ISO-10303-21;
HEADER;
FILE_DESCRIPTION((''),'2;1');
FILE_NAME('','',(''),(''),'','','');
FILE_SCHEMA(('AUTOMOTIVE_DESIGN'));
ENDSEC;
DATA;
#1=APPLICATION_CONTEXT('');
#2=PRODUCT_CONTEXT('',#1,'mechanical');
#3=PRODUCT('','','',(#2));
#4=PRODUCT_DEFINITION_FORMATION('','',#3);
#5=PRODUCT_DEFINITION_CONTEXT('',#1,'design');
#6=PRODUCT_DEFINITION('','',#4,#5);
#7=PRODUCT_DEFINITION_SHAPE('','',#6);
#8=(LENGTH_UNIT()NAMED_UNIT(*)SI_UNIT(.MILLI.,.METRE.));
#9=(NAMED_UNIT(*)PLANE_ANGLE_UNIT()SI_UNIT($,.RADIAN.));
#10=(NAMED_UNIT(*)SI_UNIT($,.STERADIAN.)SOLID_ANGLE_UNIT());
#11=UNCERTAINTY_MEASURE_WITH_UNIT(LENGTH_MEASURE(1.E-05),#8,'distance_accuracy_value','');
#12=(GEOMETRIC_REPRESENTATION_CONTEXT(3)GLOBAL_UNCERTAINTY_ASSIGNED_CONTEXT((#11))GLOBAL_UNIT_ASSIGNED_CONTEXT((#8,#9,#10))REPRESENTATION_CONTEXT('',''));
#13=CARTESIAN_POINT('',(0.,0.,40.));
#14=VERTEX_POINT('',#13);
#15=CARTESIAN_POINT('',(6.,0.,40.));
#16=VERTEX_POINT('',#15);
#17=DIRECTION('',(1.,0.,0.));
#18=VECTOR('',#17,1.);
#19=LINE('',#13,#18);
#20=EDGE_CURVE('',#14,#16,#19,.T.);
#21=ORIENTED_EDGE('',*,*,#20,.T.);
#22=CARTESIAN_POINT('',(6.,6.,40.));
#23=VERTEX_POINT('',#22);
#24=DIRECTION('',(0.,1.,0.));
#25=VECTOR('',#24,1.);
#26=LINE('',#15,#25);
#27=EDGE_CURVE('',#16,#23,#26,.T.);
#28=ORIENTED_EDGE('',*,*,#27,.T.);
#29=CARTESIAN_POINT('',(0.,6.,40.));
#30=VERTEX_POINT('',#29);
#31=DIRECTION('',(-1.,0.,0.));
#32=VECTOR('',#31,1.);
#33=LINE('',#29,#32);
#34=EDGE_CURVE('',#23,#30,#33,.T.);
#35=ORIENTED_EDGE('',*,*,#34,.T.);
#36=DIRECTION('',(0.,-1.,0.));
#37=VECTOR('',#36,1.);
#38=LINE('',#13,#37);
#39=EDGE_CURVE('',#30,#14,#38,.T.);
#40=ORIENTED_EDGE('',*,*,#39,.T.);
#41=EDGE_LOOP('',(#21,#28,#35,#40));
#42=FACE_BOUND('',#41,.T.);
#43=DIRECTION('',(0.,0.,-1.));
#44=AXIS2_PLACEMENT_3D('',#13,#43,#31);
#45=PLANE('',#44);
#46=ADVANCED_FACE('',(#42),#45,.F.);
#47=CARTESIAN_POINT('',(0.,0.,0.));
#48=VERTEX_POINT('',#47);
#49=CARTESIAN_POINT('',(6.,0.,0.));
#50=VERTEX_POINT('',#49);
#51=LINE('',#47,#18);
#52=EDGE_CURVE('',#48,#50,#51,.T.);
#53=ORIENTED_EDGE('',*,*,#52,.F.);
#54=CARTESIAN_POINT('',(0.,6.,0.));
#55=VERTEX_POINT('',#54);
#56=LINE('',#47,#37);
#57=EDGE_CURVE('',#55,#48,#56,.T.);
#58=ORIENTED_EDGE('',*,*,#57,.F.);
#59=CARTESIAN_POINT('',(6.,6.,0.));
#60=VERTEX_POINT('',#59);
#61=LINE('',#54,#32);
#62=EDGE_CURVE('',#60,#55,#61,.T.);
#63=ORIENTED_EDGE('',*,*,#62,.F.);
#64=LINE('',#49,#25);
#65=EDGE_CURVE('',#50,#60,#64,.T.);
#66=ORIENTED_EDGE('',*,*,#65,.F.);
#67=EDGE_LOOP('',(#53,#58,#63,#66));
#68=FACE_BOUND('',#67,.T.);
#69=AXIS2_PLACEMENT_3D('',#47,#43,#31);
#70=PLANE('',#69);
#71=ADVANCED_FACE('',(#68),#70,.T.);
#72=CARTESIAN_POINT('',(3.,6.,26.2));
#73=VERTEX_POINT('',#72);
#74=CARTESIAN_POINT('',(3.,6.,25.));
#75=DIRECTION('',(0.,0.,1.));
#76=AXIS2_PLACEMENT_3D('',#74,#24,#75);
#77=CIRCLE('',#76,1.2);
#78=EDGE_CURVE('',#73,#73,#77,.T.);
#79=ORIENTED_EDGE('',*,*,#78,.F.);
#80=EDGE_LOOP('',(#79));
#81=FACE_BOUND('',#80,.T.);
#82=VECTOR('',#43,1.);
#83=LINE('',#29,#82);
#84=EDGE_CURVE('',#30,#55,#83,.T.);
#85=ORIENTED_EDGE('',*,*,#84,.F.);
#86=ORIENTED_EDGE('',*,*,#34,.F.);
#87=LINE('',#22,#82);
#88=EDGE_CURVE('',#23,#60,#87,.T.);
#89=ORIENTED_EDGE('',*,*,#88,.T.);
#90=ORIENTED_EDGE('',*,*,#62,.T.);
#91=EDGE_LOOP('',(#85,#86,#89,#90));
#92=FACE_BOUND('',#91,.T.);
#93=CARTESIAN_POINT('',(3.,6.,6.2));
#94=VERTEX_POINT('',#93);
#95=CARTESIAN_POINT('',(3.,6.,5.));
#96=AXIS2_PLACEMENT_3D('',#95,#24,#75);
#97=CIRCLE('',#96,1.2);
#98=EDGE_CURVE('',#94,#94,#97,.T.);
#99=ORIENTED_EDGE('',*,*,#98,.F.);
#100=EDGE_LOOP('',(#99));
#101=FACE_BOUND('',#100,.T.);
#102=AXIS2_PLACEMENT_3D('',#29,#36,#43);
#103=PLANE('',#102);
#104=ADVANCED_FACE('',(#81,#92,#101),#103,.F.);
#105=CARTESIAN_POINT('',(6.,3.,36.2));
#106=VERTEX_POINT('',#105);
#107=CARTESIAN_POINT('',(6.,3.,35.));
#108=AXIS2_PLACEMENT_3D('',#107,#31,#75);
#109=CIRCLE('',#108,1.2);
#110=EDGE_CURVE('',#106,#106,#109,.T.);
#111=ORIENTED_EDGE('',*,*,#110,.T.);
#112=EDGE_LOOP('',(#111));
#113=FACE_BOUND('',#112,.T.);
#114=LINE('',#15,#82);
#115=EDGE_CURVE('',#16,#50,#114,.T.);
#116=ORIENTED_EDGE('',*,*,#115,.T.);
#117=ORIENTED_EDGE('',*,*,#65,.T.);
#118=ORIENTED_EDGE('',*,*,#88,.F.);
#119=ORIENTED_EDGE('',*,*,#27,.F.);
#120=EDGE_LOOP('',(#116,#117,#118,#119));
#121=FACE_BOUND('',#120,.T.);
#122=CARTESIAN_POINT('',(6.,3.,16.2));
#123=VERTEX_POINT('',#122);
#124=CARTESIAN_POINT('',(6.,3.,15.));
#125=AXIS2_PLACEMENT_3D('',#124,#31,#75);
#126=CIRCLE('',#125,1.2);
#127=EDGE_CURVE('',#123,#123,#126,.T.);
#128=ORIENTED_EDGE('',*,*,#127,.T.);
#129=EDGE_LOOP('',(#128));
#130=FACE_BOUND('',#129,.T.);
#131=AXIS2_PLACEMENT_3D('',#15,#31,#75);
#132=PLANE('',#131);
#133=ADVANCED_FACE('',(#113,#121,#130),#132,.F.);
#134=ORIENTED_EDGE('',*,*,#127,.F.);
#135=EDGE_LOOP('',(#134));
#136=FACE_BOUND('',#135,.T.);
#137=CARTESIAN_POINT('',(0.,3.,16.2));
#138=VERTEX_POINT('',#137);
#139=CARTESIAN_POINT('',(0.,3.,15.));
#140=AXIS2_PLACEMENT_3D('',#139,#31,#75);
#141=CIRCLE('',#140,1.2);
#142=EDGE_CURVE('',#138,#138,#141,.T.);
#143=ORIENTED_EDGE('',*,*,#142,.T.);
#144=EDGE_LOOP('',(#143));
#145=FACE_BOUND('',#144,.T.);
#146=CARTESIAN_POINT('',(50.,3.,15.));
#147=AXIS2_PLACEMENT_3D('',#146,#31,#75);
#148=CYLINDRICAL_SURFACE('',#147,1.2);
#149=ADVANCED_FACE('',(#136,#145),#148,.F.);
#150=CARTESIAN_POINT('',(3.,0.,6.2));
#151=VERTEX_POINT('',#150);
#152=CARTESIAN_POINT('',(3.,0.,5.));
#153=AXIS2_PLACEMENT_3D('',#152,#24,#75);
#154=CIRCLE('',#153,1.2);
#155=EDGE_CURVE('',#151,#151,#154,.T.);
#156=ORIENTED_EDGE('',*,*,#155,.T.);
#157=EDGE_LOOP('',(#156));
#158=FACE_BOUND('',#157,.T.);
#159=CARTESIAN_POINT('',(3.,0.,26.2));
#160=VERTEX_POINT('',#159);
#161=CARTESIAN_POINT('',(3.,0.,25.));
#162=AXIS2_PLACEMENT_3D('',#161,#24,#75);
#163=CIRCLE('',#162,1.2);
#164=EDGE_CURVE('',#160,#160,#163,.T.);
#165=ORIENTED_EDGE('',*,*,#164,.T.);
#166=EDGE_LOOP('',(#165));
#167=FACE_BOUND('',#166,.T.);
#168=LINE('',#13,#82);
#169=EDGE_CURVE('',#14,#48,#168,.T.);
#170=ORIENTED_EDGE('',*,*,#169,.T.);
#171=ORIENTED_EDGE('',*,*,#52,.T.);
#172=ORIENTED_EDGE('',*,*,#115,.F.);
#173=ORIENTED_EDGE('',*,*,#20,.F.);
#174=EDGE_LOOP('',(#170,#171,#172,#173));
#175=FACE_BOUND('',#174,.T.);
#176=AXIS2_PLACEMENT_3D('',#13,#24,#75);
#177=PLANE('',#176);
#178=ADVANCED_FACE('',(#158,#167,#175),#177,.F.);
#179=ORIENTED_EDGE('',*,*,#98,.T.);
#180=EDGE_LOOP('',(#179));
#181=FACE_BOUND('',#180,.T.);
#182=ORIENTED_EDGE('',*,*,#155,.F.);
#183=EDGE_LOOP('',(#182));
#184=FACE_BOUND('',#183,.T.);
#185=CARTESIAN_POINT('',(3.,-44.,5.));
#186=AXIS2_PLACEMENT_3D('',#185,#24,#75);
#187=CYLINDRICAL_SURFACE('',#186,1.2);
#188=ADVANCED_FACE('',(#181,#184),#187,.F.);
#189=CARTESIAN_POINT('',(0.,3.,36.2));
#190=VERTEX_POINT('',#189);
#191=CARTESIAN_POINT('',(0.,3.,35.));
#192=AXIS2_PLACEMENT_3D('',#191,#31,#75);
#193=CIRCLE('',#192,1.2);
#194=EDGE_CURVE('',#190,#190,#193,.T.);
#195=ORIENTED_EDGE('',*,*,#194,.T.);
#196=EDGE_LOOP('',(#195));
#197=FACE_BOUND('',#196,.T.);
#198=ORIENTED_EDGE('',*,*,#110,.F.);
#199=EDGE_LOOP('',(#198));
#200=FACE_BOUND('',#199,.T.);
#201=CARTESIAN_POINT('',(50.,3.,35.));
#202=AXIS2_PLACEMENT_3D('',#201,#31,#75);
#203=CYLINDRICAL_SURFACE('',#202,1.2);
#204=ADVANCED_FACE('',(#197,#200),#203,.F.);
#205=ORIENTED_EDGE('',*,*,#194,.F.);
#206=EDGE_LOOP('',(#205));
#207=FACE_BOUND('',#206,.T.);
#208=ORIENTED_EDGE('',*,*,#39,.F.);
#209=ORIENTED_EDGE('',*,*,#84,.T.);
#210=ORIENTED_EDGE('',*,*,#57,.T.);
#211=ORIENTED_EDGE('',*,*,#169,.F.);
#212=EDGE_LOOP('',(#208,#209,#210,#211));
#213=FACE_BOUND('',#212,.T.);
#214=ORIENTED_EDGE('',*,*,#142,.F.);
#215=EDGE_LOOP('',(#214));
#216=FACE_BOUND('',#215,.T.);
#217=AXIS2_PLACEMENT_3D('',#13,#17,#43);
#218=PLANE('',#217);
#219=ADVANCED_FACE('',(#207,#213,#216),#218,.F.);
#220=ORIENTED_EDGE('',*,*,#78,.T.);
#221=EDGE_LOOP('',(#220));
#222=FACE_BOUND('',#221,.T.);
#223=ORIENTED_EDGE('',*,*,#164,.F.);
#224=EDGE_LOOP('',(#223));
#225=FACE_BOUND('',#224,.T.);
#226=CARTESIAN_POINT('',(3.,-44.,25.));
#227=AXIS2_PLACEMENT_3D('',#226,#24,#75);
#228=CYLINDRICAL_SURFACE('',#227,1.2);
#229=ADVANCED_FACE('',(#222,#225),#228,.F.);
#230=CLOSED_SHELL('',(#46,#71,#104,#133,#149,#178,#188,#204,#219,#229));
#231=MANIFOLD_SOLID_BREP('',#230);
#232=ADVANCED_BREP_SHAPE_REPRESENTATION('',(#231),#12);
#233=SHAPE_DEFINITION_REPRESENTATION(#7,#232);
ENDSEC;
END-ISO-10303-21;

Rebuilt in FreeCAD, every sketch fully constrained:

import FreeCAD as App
import Part
import Sketcher

V = App.Vector


def add_polygon(sketch, points):
    """Adds a closed chain of lines whose ends are joined by coincident constraints."""
    first, n = sketch.GeometryCount, len(points)
    for a, b in zip(points, points[1:] + points[:1]):
        sketch.addGeometry(Part.LineSegment(App.Vector(*a, 0), App.Vector(*b, 0)), False)
    for i in range(n):
        sketch.addConstraint(Sketcher.Constraint("Coincident", first + i, 2, first + (i + 1) % n, 1))

doc = App.newDocument("Part")
body = doc.addObject("PartDesign::Body", "Body")

sketch1 = body.newObject("Sketcher::SketchObject", "Sketch")
sketch1.AttachmentSupport = (doc.getObject("XY_Plane"), [""])
sketch1.MapMode = "FlatFace"
add_polygon(sketch1, [(0, 6), (0, 0), (6, 0), (6, 6)])
sketch1.addConstraint([
    Sketcher.Constraint("Vertical", 0),
    Sketcher.Constraint("Horizontal", 1),
    Sketcher.Constraint("Vertical", 2),
    Sketcher.Constraint("Horizontal", 3),
    Sketcher.Constraint("Coincident", 0, 2, -1, 1),
    Sketcher.Constraint("Equal", 3, 0),
    Sketcher.Constraint("DistanceX", 1, 1, 1, 2, 6.0),
])
pad1 = body.newObject("PartDesign::Pad", "Pad")
pad1.Profile = sketch1
pad1.Length = 40

sketch2 = body.newObject("Sketcher::SketchObject", "Sketch001")
sketch2.AttachmentSupport = (doc.getObject("XZ_Plane"), [""])
sketch2.MapMode = "FlatFace"
sketch2.AttachmentOffset = App.Placement(V(0, 0, -6), App.Rotation())
sketch2.addGeometry([
    Part.Circle(V(3, 5, 0), V(0, 0, 1), 1.2),
    Part.Circle(V(3, 25, 0), V(0, 0, 1), 1.2),
], False)
sketch2.addConstraint([
    Sketcher.Constraint("Equal", 0, 1),
    Sketcher.Constraint("Vertical", 0, 3, 1, 3),
    Sketcher.Constraint("Diameter", 0, 2.4),
    Sketcher.Constraint("DistanceX", -1, 1, 0, 3, 3.0),
    Sketcher.Constraint("DistanceY", -1, 1, 0, 3, 5.0),
    Sketcher.Constraint("DistanceY", -1, 1, 1, 3, 25.0),
])
pocket1 = body.newObject("PartDesign::Pocket", "Pocket")
pocket1.Profile = sketch2
pocket1.Length = 50
pocket1.Reversed = True

sketch3 = body.newObject("Sketcher::SketchObject", "Sketch002")
sketch3.AttachmentSupport = (doc.getObject("YZ_Plane"), [""])
sketch3.MapMode = "FlatFace"
sketch3.addGeometry([
    Part.Circle(V(3, 35, 0), V(0, 0, 1), 1.2),
    Part.Circle(V(3, 15, 0), V(0, 0, 1), 1.2),
], False)
sketch3.addConstraint([
    Sketcher.Constraint("Equal", 0, 1),
    Sketcher.Constraint("Vertical", 0, 3, 1, 3),
    Sketcher.Constraint("Diameter", 0, 2.4),
    Sketcher.Constraint("DistanceX", -1, 1, 0, 3, 3.0),
    Sketcher.Constraint("DistanceY", -1, 1, 0, 3, 35.0),
    Sketcher.Constraint("DistanceY", -1, 1, 1, 3, 15.0),
])
pocket2 = body.newObject("PartDesign::Pocket", "Pocket001")
pocket2.Profile = sketch3
pocket2.Length = 50
pocket2.Reversed = True

doc.recompute()
